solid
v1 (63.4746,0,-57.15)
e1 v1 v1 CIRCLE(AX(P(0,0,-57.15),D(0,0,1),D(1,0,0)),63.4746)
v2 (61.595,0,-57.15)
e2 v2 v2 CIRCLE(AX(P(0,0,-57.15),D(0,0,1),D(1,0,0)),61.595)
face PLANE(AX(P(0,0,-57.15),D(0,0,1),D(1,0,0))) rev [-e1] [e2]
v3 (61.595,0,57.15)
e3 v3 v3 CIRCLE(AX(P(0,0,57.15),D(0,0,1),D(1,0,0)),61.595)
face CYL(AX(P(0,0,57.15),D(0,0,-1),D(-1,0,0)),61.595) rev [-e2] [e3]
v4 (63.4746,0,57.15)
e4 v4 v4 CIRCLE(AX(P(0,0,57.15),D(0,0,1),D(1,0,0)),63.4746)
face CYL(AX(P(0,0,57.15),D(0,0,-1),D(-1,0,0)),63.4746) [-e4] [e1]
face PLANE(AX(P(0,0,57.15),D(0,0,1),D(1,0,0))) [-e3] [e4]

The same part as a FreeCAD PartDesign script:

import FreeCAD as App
import Part
import Sketcher
from FreeCAD import Vector
Q = App.Units.Quantity

doc = App.newDocument("Part")
body = doc.addObject("PartDesign::Body", "Body")

sketch1 = doc.addObject("Sketcher::SketchObject", "Sketch")
body.addObject(sketch1)
sketch1.AttachmentSupport = (doc.XY_Plane, [""])
sketch1.MapMode = "FlatFace"
sketch1.addGeometry([
    Part.Circle(Vector(0, 0, 0), Vector(0, 0, 1), 63.4746),
    Part.Circle(Vector(0, 0, 0), Vector(0, 0, 1), 61.595),
], False)
sketch1.addConstraint([
    Sketcher.Constraint("Coincident", 0, 3, -1, 1),
    Sketcher.Constraint("Coincident", 1, 3, -1, 1),
    Sketcher.Constraint("Diameter", 1, Q("4.85 in")),
    Sketcher.Constraint("Diameter", 0, Q("4.998 in")),
])
pad1 = doc.addObject("PartDesign::Pad", "Pad")
body.addObject(pad1)
pad1.Profile = sketch1
pad1.Length = Q("4.5 in")
pad1.Midplane = True

doc.recompute()
